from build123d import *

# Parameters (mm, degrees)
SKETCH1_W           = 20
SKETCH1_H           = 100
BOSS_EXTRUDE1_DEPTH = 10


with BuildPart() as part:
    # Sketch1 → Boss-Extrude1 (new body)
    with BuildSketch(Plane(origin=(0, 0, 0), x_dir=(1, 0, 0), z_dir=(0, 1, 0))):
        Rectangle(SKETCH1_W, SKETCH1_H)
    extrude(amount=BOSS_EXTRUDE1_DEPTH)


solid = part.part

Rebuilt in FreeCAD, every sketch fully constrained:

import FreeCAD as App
import Part
import Sketcher

V = App.Vector

doc = App.newDocument("Part")
body = doc.addObject("PartDesign::Body", "Body")

# Sketch on XZ plane
sketch1 = doc.addObject("Sketcher::SketchObject", "Sketch")
body.addObject(sketch1)
sketch1.AttachmentSupport = (doc.XZ_Plane, [""])
sketch1.MapMode = "FlatFace"
sketch1.addGeometry([
    Part.LineSegment(V(-10, -50, 0), V(-10, 50, 0)),
    Part.LineSegment(V(-10, 50, 0), V(10, 50, 0)),
    Part.LineSegment(V(10, 50, 0), V(10, -50, 0)),
    Part.LineSegment(V(10, -50, 0), V(-10, -50, 0)),
], False)
sketch1.addConstraint([
    Sketcher.Constraint("Coincident", 0, 2, 1, 1),
    Sketcher.Constraint("Coincident", 1, 2, 2, 1),
    Sketcher.Constraint("Coincident", 2, 2, 3, 1),
    Sketcher.Constraint("Coincident", 3, 2, 0, 1),
    Sketcher.Constraint("Vertical", 0),
    Sketcher.Constraint("Horizontal", 1),
    Sketcher.Constraint("Vertical", 2),
    Sketcher.Constraint("Horizontal", 3),
    Sketcher.Constraint("Symmetric", 0, 2, 2, 2, -1, 1),
    Sketcher.Constraint("DistanceX", 1, 1, 1, 2, 20.0),
    Sketcher.Constraint("DistanceY", 0, 1, 0, 2, 100.0),
])
pad1 = doc.addObject("PartDesign::Pad", "Pad")
body.addObject(pad1)
pad1.Profile = sketch1
pad1.Length = 10
pad1.Reversed = True

doc.recompute()
